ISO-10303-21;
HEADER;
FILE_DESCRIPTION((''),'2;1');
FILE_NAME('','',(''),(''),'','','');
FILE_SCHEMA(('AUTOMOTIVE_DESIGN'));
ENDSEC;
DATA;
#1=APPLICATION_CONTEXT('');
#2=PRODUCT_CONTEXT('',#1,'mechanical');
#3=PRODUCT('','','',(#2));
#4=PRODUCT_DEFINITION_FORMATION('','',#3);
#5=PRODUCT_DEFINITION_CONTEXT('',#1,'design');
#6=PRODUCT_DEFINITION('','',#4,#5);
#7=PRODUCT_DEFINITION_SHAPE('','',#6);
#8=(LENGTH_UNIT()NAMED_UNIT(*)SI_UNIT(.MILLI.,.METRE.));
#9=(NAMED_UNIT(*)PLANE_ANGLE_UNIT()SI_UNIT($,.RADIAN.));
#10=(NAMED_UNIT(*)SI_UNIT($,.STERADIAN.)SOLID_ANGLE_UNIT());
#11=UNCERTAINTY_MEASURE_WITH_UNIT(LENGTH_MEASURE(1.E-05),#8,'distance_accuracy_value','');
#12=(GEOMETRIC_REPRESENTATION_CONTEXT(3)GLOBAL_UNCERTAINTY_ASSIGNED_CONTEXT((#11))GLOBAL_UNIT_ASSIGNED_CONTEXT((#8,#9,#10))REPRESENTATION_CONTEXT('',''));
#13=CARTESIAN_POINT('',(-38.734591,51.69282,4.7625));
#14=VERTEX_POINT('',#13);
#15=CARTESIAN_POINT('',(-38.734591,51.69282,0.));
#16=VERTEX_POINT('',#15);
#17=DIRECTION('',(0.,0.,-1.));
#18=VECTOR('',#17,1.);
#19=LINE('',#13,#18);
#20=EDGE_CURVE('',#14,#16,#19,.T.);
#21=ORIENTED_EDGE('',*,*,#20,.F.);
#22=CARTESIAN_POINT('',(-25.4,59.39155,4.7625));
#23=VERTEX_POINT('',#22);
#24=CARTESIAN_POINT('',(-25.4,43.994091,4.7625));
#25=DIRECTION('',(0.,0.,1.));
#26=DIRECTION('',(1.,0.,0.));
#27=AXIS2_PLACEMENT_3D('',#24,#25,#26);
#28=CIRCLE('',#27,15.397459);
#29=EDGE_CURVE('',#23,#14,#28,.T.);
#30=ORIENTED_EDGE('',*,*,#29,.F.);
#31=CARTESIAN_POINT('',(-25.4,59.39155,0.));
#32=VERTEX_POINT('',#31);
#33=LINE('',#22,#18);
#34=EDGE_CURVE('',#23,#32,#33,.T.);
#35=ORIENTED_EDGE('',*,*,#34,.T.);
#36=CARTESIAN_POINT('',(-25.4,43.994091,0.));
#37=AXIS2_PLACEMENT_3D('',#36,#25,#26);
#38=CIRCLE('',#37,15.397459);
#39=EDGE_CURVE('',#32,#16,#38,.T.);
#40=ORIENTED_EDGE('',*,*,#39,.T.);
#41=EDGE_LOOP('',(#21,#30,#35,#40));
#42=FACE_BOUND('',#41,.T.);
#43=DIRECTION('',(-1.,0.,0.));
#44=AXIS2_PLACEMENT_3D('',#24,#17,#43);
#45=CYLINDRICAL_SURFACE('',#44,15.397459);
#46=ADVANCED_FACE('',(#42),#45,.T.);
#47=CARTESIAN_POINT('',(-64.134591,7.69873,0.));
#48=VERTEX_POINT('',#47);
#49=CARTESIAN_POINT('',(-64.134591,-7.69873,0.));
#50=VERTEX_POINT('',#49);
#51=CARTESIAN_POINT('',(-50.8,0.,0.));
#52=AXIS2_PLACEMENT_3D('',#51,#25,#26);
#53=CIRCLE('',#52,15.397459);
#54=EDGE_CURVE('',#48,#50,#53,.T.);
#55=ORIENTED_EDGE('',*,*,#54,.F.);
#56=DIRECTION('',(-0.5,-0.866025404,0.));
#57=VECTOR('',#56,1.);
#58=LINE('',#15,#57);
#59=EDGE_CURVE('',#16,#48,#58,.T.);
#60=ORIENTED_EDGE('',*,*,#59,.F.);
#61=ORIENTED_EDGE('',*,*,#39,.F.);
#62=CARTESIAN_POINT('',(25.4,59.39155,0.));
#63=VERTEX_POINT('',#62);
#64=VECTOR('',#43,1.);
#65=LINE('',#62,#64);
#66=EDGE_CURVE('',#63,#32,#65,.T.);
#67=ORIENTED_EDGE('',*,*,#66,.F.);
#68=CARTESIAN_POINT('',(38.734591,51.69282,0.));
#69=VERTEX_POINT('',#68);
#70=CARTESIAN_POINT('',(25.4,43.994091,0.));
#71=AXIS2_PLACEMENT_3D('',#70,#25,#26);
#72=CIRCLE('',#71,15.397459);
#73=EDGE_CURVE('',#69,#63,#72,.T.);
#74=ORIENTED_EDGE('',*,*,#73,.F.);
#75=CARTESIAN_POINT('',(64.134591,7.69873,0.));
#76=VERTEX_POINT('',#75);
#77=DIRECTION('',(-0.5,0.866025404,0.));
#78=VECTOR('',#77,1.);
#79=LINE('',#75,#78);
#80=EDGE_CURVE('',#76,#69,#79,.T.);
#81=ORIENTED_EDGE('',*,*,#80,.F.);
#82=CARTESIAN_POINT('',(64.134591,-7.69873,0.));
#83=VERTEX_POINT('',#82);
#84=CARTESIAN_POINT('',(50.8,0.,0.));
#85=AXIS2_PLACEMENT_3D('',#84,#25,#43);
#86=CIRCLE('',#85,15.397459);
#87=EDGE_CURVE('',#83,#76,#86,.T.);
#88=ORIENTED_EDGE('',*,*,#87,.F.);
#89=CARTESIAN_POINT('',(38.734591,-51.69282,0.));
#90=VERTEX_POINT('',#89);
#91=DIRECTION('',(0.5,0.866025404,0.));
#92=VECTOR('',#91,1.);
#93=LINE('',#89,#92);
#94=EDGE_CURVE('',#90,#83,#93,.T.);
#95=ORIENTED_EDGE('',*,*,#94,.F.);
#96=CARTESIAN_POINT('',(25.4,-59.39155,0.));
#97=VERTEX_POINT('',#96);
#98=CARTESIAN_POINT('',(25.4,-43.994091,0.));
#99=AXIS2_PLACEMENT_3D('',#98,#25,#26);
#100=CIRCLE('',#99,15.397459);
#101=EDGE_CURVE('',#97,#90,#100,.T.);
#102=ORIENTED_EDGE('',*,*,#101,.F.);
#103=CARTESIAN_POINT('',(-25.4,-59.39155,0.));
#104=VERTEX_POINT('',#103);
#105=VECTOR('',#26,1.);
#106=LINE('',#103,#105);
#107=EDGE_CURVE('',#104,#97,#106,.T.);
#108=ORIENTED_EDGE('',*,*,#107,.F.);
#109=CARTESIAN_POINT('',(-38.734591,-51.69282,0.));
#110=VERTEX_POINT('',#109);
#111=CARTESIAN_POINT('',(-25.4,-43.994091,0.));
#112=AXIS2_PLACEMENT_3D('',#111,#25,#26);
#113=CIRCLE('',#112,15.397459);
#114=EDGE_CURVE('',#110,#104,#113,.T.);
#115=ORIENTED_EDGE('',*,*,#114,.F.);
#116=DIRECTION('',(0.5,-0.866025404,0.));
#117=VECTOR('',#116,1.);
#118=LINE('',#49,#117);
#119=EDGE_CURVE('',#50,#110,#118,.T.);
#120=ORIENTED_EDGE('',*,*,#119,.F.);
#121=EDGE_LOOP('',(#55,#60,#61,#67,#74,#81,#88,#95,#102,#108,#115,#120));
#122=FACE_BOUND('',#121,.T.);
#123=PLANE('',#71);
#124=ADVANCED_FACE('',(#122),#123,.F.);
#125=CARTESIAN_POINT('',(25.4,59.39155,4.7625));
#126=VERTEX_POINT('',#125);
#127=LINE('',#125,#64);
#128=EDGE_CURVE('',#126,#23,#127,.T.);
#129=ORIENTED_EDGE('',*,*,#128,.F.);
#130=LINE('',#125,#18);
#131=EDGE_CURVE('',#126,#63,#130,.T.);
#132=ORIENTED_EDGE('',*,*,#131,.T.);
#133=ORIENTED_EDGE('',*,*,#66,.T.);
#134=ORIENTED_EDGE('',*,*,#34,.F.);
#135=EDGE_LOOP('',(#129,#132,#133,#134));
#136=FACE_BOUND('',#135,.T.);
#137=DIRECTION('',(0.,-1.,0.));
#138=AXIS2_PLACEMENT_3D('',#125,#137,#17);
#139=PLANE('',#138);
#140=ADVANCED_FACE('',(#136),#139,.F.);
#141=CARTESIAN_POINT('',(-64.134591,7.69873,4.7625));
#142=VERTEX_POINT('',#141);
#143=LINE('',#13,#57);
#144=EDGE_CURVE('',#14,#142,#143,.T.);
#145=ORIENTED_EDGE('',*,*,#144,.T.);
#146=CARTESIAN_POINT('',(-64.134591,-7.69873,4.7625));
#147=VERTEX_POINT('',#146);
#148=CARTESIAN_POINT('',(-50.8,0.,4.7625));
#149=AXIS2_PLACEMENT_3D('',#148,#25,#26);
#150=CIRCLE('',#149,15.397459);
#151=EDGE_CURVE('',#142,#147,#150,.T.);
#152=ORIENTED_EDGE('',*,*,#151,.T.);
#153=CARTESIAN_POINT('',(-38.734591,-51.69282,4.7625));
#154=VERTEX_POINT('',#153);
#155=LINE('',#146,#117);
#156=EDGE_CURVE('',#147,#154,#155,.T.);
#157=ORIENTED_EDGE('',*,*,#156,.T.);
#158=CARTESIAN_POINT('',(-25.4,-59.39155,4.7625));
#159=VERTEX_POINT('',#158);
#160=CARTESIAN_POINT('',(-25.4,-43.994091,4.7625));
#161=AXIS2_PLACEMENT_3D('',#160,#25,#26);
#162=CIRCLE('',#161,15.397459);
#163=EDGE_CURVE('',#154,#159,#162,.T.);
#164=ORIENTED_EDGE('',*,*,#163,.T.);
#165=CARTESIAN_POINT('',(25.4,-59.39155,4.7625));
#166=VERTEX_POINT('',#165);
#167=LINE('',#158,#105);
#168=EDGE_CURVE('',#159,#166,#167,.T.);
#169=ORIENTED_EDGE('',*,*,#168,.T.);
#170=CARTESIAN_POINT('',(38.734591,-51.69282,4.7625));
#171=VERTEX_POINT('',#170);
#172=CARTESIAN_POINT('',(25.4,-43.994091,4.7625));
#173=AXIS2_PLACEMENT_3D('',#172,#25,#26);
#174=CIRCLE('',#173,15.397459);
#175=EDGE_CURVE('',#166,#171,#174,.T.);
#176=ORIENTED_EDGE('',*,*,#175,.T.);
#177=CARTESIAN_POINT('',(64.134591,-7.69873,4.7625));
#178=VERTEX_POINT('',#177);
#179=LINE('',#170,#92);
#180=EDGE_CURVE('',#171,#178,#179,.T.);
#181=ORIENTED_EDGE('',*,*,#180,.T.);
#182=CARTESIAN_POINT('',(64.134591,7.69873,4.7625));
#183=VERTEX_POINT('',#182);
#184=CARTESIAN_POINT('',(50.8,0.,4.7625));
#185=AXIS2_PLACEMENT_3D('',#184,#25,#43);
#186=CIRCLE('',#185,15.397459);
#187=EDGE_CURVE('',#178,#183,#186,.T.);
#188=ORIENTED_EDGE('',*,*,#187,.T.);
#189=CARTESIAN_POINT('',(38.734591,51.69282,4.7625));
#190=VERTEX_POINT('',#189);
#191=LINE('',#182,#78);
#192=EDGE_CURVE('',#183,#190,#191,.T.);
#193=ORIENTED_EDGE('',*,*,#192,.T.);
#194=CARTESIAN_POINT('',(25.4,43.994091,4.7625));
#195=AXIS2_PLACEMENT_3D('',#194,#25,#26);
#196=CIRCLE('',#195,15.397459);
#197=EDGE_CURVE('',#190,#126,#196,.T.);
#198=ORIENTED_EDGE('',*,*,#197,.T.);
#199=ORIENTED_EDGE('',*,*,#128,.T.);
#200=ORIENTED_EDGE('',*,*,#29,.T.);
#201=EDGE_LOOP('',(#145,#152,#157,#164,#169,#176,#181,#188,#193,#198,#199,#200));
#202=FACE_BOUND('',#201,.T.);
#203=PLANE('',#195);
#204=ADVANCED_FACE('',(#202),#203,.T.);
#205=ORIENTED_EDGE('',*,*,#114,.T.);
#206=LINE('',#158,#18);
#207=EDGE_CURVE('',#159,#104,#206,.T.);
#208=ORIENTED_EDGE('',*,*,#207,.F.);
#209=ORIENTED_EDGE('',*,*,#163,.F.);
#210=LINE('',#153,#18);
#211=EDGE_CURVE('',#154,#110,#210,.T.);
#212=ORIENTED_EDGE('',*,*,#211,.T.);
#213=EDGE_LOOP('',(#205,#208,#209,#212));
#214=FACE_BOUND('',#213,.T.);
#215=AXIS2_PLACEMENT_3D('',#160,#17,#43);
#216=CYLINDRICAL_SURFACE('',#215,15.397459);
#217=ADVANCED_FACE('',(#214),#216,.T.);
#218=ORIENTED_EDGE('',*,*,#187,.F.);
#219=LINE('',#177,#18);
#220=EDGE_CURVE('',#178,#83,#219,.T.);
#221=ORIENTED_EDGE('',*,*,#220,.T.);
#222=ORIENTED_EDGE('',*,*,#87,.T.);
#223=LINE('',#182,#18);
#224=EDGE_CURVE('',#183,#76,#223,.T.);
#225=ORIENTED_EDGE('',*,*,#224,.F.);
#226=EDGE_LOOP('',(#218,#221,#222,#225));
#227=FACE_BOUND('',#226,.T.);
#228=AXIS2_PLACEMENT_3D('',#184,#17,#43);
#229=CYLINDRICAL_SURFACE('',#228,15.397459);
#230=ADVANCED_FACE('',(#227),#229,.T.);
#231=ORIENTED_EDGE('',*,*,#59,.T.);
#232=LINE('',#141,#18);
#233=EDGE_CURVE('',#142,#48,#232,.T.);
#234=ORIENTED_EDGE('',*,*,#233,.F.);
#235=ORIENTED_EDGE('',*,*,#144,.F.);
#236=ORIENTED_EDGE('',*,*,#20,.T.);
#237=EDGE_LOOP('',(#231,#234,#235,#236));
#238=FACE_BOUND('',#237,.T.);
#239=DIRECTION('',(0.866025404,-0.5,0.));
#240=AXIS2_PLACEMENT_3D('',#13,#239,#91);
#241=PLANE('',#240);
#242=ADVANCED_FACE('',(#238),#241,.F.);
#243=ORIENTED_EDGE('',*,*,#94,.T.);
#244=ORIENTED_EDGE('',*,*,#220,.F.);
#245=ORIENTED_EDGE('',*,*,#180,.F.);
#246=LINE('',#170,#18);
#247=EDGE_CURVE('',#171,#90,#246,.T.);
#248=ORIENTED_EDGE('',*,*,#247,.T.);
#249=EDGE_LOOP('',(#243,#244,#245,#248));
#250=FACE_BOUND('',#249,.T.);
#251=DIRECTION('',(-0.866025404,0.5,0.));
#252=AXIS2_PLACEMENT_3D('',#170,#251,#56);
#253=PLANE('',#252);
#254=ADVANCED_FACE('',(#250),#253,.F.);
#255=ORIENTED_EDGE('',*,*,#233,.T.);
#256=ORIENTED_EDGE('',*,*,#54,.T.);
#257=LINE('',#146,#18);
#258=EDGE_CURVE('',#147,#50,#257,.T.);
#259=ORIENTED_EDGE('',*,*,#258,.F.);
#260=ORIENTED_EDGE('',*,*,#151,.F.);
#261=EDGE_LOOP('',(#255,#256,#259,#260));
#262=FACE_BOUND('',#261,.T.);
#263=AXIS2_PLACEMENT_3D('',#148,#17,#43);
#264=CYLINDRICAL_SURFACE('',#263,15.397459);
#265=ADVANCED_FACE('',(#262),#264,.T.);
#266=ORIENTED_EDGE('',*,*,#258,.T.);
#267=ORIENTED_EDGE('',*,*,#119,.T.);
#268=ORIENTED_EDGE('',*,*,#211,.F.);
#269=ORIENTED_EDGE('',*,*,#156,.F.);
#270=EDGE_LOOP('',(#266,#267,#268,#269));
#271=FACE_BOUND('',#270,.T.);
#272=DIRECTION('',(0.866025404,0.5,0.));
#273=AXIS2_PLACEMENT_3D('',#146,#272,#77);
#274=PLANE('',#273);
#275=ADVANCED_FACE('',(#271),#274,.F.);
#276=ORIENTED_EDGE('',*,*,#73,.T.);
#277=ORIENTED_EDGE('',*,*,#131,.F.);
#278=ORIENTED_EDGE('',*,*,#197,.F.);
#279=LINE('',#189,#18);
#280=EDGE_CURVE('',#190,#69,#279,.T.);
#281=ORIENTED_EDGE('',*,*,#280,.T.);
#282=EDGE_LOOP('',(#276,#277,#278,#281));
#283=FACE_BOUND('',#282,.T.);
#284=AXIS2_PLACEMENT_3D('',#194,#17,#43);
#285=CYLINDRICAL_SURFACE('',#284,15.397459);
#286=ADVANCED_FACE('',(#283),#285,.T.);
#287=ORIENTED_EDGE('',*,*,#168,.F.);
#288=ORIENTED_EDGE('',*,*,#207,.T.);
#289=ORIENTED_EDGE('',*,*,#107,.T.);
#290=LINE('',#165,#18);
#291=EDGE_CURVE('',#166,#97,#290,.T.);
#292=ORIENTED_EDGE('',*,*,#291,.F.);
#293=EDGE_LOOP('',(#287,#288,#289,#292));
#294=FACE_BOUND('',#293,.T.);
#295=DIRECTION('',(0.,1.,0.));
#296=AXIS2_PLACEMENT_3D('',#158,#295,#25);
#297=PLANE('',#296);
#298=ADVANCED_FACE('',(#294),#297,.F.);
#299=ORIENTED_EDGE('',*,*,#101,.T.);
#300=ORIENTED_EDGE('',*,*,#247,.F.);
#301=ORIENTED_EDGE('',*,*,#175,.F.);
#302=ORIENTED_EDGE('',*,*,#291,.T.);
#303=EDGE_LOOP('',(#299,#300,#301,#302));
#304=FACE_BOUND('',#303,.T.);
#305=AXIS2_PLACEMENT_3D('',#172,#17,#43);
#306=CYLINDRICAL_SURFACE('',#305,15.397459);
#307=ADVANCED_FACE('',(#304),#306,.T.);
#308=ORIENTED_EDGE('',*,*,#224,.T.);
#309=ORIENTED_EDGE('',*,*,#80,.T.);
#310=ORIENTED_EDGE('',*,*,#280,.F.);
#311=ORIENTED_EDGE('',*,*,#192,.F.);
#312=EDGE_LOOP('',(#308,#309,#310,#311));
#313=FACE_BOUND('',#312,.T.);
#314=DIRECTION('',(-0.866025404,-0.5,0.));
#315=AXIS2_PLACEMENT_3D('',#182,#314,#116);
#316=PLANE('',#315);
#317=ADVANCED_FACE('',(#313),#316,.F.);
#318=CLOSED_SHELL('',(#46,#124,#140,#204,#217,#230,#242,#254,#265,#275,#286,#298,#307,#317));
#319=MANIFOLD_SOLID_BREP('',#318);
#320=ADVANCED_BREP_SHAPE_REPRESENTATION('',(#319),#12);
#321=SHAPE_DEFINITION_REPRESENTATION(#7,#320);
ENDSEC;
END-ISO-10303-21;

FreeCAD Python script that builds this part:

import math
import FreeCAD as App
import Part
import Sketcher
from FreeCAD import Vector
Q = App.Units.Quantity

doc = App.newDocument("Part")
params = doc.addObject("Spreadsheet::Sheet", "Params")
for row, (alias, value) in enumerate([
    ("sketch1_width", "2 in"),
    ("sketch1_length", "2 in"),
    ("pad1_length", "0.1875 in"),
], start=1):
    params.set(f"A{row}", alias)
    params.set(f"B{row}", "=" + value)
    params.setAlias(f"B{row}", alias)

body = doc.addObject("PartDesign::Body", "Body")

sketch1 = body.newObject("Sketcher::SketchObject", "Sketch")
sketch1.AttachmentSupport = (doc.getObject("XY_Plane"), [""])
sketch1.MapMode = "FlatFace"
sketch1.addGeometry([
    Part.LineSegment(Vector(64, 8, 0), Vector(39, 52, 0)),
    Part.ArcOfCircle(Part.Circle(Vector(25, 44, 0), Vector(0, 0, 1), 15), math.radians(30), math.radians(90)),
    Part.LineSegment(Vector(25, 59, 0), Vector(-25, 59, 0)),
    Part.ArcOfCircle(Part.Circle(Vector(-25, 44, 0), Vector(0, 0, 1), 15), math.radians(90), math.radians(150)),
    Part.LineSegment(Vector(-39, 52, 0), Vector(-64, 8, 0)),
    Part.ArcOfCircle(Part.Circle(Vector(-51, 0, 0), Vector(0, 0, 1), 15), math.radians(150), math.radians(210)),
    Part.LineSegment(Vector(-64, -8, 0), Vector(-39, -52, 0)),
    Part.ArcOfCircle(Part.Circle(Vector(-25, -44, 0), Vector(0, 0, 1), 15), math.radians(-150), math.radians(-90)),
    Part.LineSegment(Vector(-25, -59, 0), Vector(25, -59, 0)),
    Part.ArcOfCircle(Part.Circle(Vector(25, -44, 0), Vector(0, 0, 1), 15), math.radians(-90), math.radians(-30)),
    Part.LineSegment(Vector(39, -52, 0), Vector(64, -8, 0)),
    Part.ArcOfCircle(Part.Circle(Vector(51, 0, 0), Vector(0, 0, 1), 15), math.radians(-30), math.radians(30)),
], False)
sketch1.addConstraint([
    Sketcher.Constraint("Tangent", 0, 2, 1, 1),
    Sketcher.Constraint("Tangent", 1, 2, 2, 1),
    Sketcher.Constraint("Tangent", 2, 2, 3, 1),
    Sketcher.Constraint("Tangent", 3, 2, 4, 1),
    Sketcher.Constraint("Tangent", 4, 2, 5, 1),
    Sketcher.Constraint("Tangent", 5, 2, 6, 1),
    Sketcher.Constraint("Tangent", 6, 2, 7, 1),
    Sketcher.Constraint("Tangent", 7, 2, 8, 1),
    Sketcher.Constraint("Tangent", 8, 2, 9, 1),
    Sketcher.Constraint("Tangent", 9, 2, 10, 1),
    Sketcher.Constraint("Tangent", 10, 2, 11, 1),
    Sketcher.Constraint("Tangent", 11, 2, 0, 1),
    Sketcher.Constraint("Horizontal", 2),
    Sketcher.Constraint("Horizontal", 8),
    Sketcher.Constraint("Equal", 1, 3),
    Sketcher.Constraint("Equal", 3, 5),
    Sketcher.Constraint("Equal", 5, 7),
    Sketcher.Constraint("Equal", 7, 9),
    Sketcher.Constraint("Equal", 9, 11),
    Sketcher.Constraint("Symmetric", 1, 3, 7, 3, -1, 1),
    Sketcher.Constraint("Symmetric", 5, 3, 11, 3, -1, 1),
    Sketcher.Constraint("Symmetric", 0, 2, 3, 2, -2),
    Sketcher.Constraint("Parallel", 4, 10),
    Sketcher.Constraint("DistanceX", 2, 2, 2, 1, Q("2 in")),
    Sketcher.Constraint("Distance", 0, Q("2 in")),
    Sketcher.Constraint("DistanceX", 5, 3, -1, 1, Q("2 in")),
    Sketcher.Constraint("Radius", 1, 15.397459),
])
sketch1.setExpression("Constraints[23]", "Params.sketch1_width")
sketch1.setExpression("Constraints[24]", "Params.sketch1_length")
pad1 = body.newObject("PartDesign::Pad", "Pad")
pad1.Profile = sketch1
pad1.setExpression("Length", "Params.pad1_length")

doc.recompute()
